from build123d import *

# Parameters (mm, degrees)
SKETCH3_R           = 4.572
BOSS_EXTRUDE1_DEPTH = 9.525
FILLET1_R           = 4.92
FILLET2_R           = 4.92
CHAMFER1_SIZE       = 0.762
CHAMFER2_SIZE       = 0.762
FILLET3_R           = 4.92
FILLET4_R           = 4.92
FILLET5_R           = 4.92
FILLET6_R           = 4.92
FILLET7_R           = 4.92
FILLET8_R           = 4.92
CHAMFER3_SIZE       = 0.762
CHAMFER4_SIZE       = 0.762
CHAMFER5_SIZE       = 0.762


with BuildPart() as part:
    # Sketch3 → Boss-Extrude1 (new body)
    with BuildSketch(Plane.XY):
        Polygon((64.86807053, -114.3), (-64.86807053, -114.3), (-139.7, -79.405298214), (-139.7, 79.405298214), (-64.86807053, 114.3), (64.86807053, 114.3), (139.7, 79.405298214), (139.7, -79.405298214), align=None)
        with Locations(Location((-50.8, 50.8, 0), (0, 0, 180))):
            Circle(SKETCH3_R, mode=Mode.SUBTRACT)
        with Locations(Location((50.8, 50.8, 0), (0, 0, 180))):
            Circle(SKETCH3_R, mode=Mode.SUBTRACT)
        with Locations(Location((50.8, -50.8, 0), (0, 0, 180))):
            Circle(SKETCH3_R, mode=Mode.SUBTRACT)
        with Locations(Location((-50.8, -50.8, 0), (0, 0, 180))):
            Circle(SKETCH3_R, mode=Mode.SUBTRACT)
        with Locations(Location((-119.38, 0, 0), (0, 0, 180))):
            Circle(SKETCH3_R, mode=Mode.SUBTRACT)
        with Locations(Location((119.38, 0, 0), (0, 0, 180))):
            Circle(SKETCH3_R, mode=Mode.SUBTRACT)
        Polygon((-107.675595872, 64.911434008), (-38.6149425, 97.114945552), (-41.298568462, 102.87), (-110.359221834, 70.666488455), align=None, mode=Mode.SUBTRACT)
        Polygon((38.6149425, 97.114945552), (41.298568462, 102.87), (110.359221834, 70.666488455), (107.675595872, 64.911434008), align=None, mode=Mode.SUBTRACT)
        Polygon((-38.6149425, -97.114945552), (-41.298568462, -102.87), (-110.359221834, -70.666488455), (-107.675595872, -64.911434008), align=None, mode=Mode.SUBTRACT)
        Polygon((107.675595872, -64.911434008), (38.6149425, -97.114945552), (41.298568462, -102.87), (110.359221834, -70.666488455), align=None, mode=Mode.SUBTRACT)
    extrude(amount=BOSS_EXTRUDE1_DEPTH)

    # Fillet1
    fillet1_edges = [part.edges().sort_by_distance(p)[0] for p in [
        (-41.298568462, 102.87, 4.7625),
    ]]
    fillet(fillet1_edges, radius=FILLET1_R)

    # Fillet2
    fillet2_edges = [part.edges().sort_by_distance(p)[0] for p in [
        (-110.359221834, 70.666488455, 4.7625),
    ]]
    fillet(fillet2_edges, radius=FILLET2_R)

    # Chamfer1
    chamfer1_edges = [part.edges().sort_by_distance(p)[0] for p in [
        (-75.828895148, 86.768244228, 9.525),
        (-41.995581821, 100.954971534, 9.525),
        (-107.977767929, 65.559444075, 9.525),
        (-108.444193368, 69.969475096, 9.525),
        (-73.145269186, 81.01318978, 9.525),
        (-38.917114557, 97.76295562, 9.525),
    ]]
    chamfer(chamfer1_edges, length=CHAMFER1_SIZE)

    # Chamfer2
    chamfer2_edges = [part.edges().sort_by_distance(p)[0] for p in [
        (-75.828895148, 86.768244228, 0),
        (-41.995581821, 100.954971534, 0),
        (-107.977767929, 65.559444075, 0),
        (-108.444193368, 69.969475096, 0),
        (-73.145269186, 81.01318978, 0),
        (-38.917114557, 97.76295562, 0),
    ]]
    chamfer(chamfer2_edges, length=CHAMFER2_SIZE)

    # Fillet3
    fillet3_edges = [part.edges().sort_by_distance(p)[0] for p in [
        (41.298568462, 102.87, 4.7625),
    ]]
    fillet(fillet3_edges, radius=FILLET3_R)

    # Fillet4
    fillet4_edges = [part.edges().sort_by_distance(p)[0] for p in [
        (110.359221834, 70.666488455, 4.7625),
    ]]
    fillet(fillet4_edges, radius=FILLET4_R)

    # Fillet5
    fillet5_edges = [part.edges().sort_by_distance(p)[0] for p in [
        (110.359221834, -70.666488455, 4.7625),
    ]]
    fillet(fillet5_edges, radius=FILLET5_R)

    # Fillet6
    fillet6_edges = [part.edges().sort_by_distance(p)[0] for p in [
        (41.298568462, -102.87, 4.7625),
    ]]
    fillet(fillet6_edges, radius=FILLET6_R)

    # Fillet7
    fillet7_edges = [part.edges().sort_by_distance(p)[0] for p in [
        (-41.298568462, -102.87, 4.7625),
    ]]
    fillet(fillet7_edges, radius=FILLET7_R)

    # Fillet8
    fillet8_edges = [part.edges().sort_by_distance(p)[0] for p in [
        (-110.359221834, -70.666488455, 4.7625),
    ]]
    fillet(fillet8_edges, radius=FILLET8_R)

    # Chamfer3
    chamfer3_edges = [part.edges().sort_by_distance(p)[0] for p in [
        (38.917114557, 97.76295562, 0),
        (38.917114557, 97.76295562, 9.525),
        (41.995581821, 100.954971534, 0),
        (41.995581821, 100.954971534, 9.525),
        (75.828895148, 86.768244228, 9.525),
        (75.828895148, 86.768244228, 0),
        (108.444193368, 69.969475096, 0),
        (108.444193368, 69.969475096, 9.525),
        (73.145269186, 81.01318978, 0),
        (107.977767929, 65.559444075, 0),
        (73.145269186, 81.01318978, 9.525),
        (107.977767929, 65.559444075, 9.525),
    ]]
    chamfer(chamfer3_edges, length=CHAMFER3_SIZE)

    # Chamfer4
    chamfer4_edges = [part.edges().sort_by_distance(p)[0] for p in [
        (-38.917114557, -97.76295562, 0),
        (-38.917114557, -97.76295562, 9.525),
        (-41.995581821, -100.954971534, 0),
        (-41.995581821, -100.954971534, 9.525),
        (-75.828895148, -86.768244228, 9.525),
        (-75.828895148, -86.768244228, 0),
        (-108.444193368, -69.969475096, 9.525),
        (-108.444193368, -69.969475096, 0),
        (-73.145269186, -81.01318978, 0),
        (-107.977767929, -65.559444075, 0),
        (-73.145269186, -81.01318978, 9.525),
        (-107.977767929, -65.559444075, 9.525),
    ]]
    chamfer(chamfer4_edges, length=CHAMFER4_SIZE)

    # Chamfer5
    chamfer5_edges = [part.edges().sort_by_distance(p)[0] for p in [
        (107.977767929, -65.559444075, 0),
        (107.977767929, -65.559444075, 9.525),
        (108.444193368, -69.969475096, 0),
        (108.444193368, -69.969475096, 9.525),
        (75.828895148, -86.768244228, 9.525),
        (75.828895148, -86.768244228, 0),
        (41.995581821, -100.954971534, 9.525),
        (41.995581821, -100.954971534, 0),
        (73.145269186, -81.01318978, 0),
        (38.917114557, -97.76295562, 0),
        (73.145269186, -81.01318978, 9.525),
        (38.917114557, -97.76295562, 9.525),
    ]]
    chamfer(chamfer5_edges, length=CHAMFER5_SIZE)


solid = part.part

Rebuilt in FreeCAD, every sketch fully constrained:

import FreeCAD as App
import Part
import Sketcher
from FreeCAD import Vector
Q = App.Units.Quantity


def edges_at(feature, points):
    """Names of the edges that pass closest to the given points."""
    edges = feature.Shape.Edges
    near = lambda p: min(range(len(edges)), key=lambda i: edges[i].distToShape(Part.Vertex(*p))[0])
    return sorted({f"Edge{near(p) + 1}" for p in points})


def add_polygon(sketch, points):
    """Adds a closed chain of lines whose ends are joined by coincident constraints."""
    first, n = sketch.GeometryCount, len(points)
    for a, b in zip(points, points[1:] + points[:1]):
        sketch.addGeometry(Part.LineSegment(App.Vector(*a, 0), App.Vector(*b, 0)), False)
    for i in range(n):
        sketch.addConstraint(Sketcher.Constraint("Coincident", first + i, 2, first + (i + 1) % n, 1))

doc = App.newDocument("Part")
body = doc.addObject("PartDesign::Body", "Body")

# Sketch on XY plane
sketch1 = doc.addObject("Sketcher::SketchObject", "Sketch")
body.addObject(sketch1)
sketch1.AttachmentSupport = (doc.XY_Plane, [""])
sketch1.MapMode = "FlatFace"
add_polygon(sketch1, [(-64.9, -114.3), (64.9, -114.3), (139.7, -79.4), (139.7, 79.4), (64.9, 114.3), (-64.9, 114.3), (-139.7, 79.4), (-139.7, -79.4)])  # lines 0-7
add_polygon(sketch1, [(107.7, -64.9), (110.4, -70.7), (41.3, -102.9), (38.6, -97.1)])  # lines 8-11
sketch1.addGeometry(Part.Circle(Vector(50.8, -50.8, 0), Vector(0, 0, 1), 4.6), False)  # 12
add_polygon(sketch1, [(-38.6, -97.1), (-41.3, -102.9), (-110.4, -70.7), (-107.7, -64.9)])  # lines 13-16
sketch1.addGeometry(Part.Circle(Vector(-50.8, -50.8, 0), Vector(0, 0, 1), 4.6), False)  # 17
sketch1.addGeometry(Part.Circle(Vector(119.4, 0, 0), Vector(0, 0, 1), 4.6), False)  # 18
sketch1.addGeometry(Part.Circle(Vector(50.8, 50.8, 0), Vector(0, 0, 1), 4.6), False)  # 19
add_polygon(sketch1, [(38.6, 97.1), (41.3, 102.9), (110.4, 70.7), (107.7, 64.9)])  # lines 20-23
sketch1.addGeometry(Part.Circle(Vector(-50.8, 50.8, 0), Vector(0, 0, 1), 4.6), False)  # 24
sketch1.addGeometry(Part.Circle(Vector(-119.4, 0, 0), Vector(0, 0, 1), 4.6), False)  # 25
add_polygon(sketch1, [(-107.7, 64.9), (-110.4, 70.7), (-41.3, 102.9), (-38.6, 97.1)])  # lines 26-29
sketch1.addConstraint(Sketcher.Constraint("Horizontal", 0))
sketch1.addConstraint(Sketcher.Constraint("Vertical", 2))
sketch1.addConstraint(Sketcher.Constraint("Horizontal", 4))
sketch1.addConstraint(Sketcher.Constraint("Vertical", 6))
sketch1.addConstraint(Sketcher.Constraint("Equal", 12, 17))
sketch1.addConstraint(Sketcher.Constraint("Equal", 17, 18))
sketch1.addConstraint(Sketcher.Constraint("Equal", 18, 19))
sketch1.addConstraint(Sketcher.Constraint("Equal", 19, 24))
sketch1.addConstraint(Sketcher.Constraint("Equal", 24, 25))
sketch1.addConstraint(Sketcher.Constraint("Symmetric", 17, 3, 19, 3, -1, 1))
sketch1.addConstraint(Sketcher.Constraint("Symmetric", 12, 3, 24, 3, -1, 1))
sketch1.addConstraint(Sketcher.Constraint("Symmetric", 18, 3, 25, 3, -1, 1))
sketch1.addConstraint(Sketcher.Constraint("Symmetric", 0, 2, 4, 2, -1, 1))
sketch1.addConstraint(Sketcher.Constraint("Symmetric", 1, 2, 5, 2, -1, 1))
sketch1.addConstraint(Sketcher.Constraint("Symmetric", 13, 2, 20, 2, -1, 1))
sketch1.addConstraint(Sketcher.Constraint("Symmetric", 14, 2, 21, 2, -1, 1))
sketch1.addConstraint(Sketcher.Constraint("Symmetric", 15, 2, 22, 2, -1, 1))
sketch1.addConstraint(Sketcher.Constraint("Symmetric", 16, 2, 23, 2, -1, 1))
sketch1.addConstraint(Sketcher.Constraint("Symmetric", 8, 2, 26, 2, -1, 1))
sketch1.addConstraint(Sketcher.Constraint("Symmetric", 9, 2, 27, 2, -1, 1))
sketch1.addConstraint(Sketcher.Constraint("Symmetric", 10, 2, 28, 2, -1, 1))
sketch1.addConstraint(Sketcher.Constraint("Symmetric", 11, 2, 29, 2, -1, 1))
sketch1.addConstraint(Sketcher.Constraint("Symmetric", 12, 3, 17, 3, -2))
sketch1.addConstraint(Sketcher.Constraint("Symmetric", 9, 2, 13, 2, -2))
sketch1.addConstraint(Sketcher.Constraint("Symmetric", 8, 2, 14, 2, -2))
sketch1.addConstraint(Sketcher.Constraint("Symmetric", 11, 2, 15, 2, -2))
sketch1.addConstraint(Sketcher.Constraint("Symmetric", 10, 2, 16, 2, -2))
sketch1.addConstraint(Sketcher.Constraint("PointOnObject", 18, 3, -1))
sketch1.addConstraint(Sketcher.Constraint("Parallel", 3, 7))
sketch1.addConstraint(Sketcher.Constraint("Perpendicular", 5, 8))
sketch1.addConstraint(Sketcher.Constraint("Perpendicular", 8, 9))
sketch1.addConstraint(Sketcher.Constraint("Perpendicular", 9, 10))
sketch1.addConstraint(Sketcher.Constraint("Perpendicular", 10, 11))
sketch1.addConstraint(Sketcher.Constraint("Perpendicular", 7, 13))
sketch1.addConstraint(Sketcher.Constraint("Horizontal", 2, 2, 5, 2))
sketch1.addConstraint(Sketcher.Constraint("Horizontal", 1, 2, 6, 2))
sketch1.addConstraint(Sketcher.Constraint("Diameter", 12, Q("0.36 in")))
sketch1.addConstraint(Sketcher.Constraint("Distance", 9, Q("3 in")))
sketch1.addConstraint(Sketcher.Constraint("DistanceX", -1, 1, 12, 3, Q("2 in")))
sketch1.addConstraint(Sketcher.Constraint("DistanceY", 12, 3, -1, 1, Q("2 in")))
sketch1.addConstraint(Sketcher.Constraint("Angle", 1, Q("25 deg")))
sketch1.addConstraint(Sketcher.Constraint("DistanceX", -1, 1, 18, 3, Q("4.7 in")))
sketch1.addConstraint(Sketcher.Constraint("DistanceY", 0, 2, -1, 1, Q("4.5 in")))
sketch1.addConstraint(Sketcher.Constraint("DistanceX", -1, 1, 1, 2, Q("5.5 in")))
sketch1.addConstraint(Sketcher.Constraint("Distance", 8, Q("0.25 in")))
sketch1.addConstraint(Sketcher.Constraint("DistanceY", 9, 2, -1, 1, Q("4.05 in")))
sketch1.addConstraint(Sketcher.Constraint("Distance", 1, Q("82.567899 mm")))
sketch1.addConstraint(Sketcher.Constraint("DistanceX", -1, 1, 8, 2, Q("110.359222 mm")))
pad1 = doc.addObject("PartDesign::Pad", "Pad")
body.addObject(pad1)
pad1.Profile = sketch1
pad1.Length = Q("0.375 in")
doc.recompute()

fillet = doc.addObject("PartDesign::Fillet", "Fillet")
body.addObject(fillet)
fillet.Base = (pad1, edges_at(pad1, [(-41.299, 102.87, 4.763)]))
fillet.Radius = 4.92
doc.recompute()

fillet2 = doc.addObject("PartDesign::Fillet", "Fillet001")
body.addObject(fillet2)
fillet2.Base = (fillet, edges_at(fillet, [(-110.359, 70.666, 4.763)]))
fillet2.Radius = 4.92
doc.recompute()

chamfer = doc.addObject("PartDesign::Chamfer", "Chamfer")
body.addObject(chamfer)
chamfer.Base = (fillet2, edges_at(fillet2, [
    (-75.829, 86.768, 9.525),
    (-41.996, 100.955, 9.525),
    (-107.978, 65.559, 9.525),
    (-108.444, 69.969, 9.525),
    (-73.145, 81.013, 9.525),
    (-38.917, 97.763, 9.525),
]))
chamfer.Size = Q("0.03 in")
doc.recompute()

chamfer2 = doc.addObject("PartDesign::Chamfer", "Chamfer001")
body.addObject(chamfer2)
chamfer2.Base = (chamfer, edges_at(chamfer, [
    (-75.829, 86.768, 0),
    (-41.996, 100.955, 0),
    (-107.978, 65.559, 0),
    (-108.444, 69.969, 0),
    (-73.145, 81.013, 0),
    (-38.917, 97.763, 0),
]))
chamfer2.Size = Q("0.03 in")
doc.recompute()

fillet3 = doc.addObject("PartDesign::Fillet", "Fillet002")
body.addObject(fillet3)
fillet3.Base = (chamfer2, edges_at(chamfer2, [(41.299, 102.87, 4.763)]))
fillet3.Radius = 4.92
doc.recompute()

fillet4 = doc.addObject("PartDesign::Fillet", "Fillet003")
body.addObject(fillet4)
fillet4.Base = (fillet3, edges_at(fillet3, [(110.359, 70.666, 4.763)]))
fillet4.Radius = 4.92
doc.recompute()

fillet5 = doc.addObject("PartDesign::Fillet", "Fillet004")
body.addObject(fillet5)
fillet5.Base = (fillet4, edges_at(fillet4, [(110.359, -70.666, 4.763)]))
fillet5.Radius = 4.92
doc.recompute()

fillet6 = doc.addObject("PartDesign::Fillet", "Fillet005")
body.addObject(fillet6)
fillet6.Base = (fillet5, edges_at(fillet5, [(41.299, -102.87, 4.763)]))
fillet6.Radius = 4.92
doc.recompute()

fillet7 = doc.addObject("PartDesign::Fillet", "Fillet006")
body.addObject(fillet7)
fillet7.Base = (fillet6, edges_at(fillet6, [(-41.299, -102.87, 4.763)]))
fillet7.Radius = 4.92
doc.recompute()

fillet8 = doc.addObject("PartDesign::Fillet", "Fillet007")
body.addObject(fillet8)
fillet8.Base = (fillet7, edges_at(fillet7, [(-110.359, -70.666, 4.763)]))
fillet8.Radius = 4.92
doc.recompute()

chamfer3 = doc.addObject("PartDesign::Chamfer", "Chamfer002")
body.addObject(chamfer3)
chamfer3.Base = (fillet8, edges_at(fillet8, [
    (38.917, 97.763, 0),
    (38.917, 97.763, 9.525),
    (41.996, 100.955, 0),
    (41.996, 100.955, 9.525),
    (75.829, 86.768, 9.525),
    (75.829, 86.768, 0),
    (108.444, 69.969, 0),
    (108.444, 69.969, 9.525),
    (73.145, 81.013, 0),
    (107.978, 65.559, 0),
    (73.145, 81.013, 9.525),
    (107.978, 65.559, 9.525),
]))
chamfer3.Size = Q("0.03 in")
doc.recompute()

chamfer4 = doc.addObject("PartDesign::Chamfer", "Chamfer003")
body.addObject(chamfer4)
chamfer4.Base = (chamfer3, edges_at(chamfer3, [
    (-38.917, -97.763, 0),
    (-38.917, -97.763, 9.525),
    (-41.996, -100.955, 0),
    (-41.996, -100.955, 9.525),
    (-75.829, -86.768, 9.525),
    (-75.829, -86.768, 0),
    (-108.444, -69.969, 9.525),
    (-108.444, -69.969, 0),
    (-73.145, -81.013, 0),
    (-107.978, -65.559, 0),
    (-73.145, -81.013, 9.525),
    (-107.978, -65.559, 9.525),
]))
chamfer4.Size = Q("0.03 in")
doc.recompute()

chamfer5 = doc.addObject("PartDesign::Chamfer", "Chamfer004")
body.addObject(chamfer5)
chamfer5.Base = (chamfer4, edges_at(chamfer4, [
    (107.978, -65.559, 0),
    (107.978, -65.559, 9.525),
    (108.444, -69.969, 0),
    (108.444, -69.969, 9.525),
    (75.829, -86.768, 9.525),
    (75.829, -86.768, 0),
    (41.996, -100.955, 9.525),
    (41.996, -100.955, 0),
    (73.145, -81.013, 0),
    (38.917, -97.763, 0),
    (73.145, -81.013, 9.525),
    (38.917, -97.763, 9.525),
]))
chamfer5.Size = Q("0.03 in")

doc.recompute()
